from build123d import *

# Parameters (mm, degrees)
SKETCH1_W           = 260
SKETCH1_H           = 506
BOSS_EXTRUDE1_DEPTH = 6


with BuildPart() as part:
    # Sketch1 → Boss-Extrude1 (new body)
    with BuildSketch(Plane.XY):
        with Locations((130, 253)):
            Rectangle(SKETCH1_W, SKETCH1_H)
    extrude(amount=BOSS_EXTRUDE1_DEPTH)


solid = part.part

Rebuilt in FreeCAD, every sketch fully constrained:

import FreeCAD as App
import Part
import Sketcher

V = App.Vector
Q = App.Units.Quantity


def add_polygon(sketch, points):
    """Adds a closed chain of lines whose ends are joined by coincident constraints."""
    first, n = sketch.GeometryCount, len(points)
    for a, b in zip(points, points[1:] + points[:1]):
        sketch.addGeometry(Part.LineSegment(App.Vector(*a, 0), App.Vector(*b, 0)), False)
    for i in range(n):
        sketch.addConstraint(Sketcher.Constraint("Coincident", first + i, 2, first + (i + 1) % n, 1))

doc = App.newDocument("Part")
params = doc.addObject("Spreadsheet::Sheet", "Params")
for row, (alias, value) in enumerate([
    ("sketch1_width", "260 mm"),
    ("sketch1_height", "506 mm"),
    ("pad1_length", "6 mm"),
], start=1):
    params.set(f"A{row}", alias)
    params.set(f"B{row}", "=" + value)
    params.setAlias(f"B{row}", alias)

body = doc.addObject("PartDesign::Body", "Body")

sketch1 = doc.addObject("Sketcher::SketchObject", "Sketch")
body.addObject(sketch1)
sketch1.AttachmentSupport = (doc.XY_Plane, [""])
sketch1.MapMode = "FlatFace"
add_polygon(sketch1, [(0, 506), (0, 0), (260, 0), (260, 506)])
sketch1.addConstraint(Sketcher.Constraint("Vertical", 0))
sketch1.addConstraint(Sketcher.Constraint("Horizontal", 1))
sketch1.addConstraint(Sketcher.Constraint("Vertical", 2))
sketch1.addConstraint(Sketcher.Constraint("Horizontal", 3))
sketch1.addConstraint(Sketcher.Constraint("Coincident", 0, 2, -1, 1))
sketch1.addConstraint(Sketcher.Constraint("DistanceX", 1, 1, 1, 2, Q("260 mm")))
sketch1.addConstraint(Sketcher.Constraint("DistanceY", 0, 2, 0, 1, Q("506 mm")))
sketch1.setExpression("Constraints[9]", "Params.sketch1_width")
sketch1.setExpression("Constraints[10]", "Params.sketch1_height")
pad1 = doc.addObject("PartDesign::Pad", "Pad")
body.addObject(pad1)
pad1.Profile = sketch1
pad1.setExpression("Length", "Params.pad1_length")

doc.recompute()
